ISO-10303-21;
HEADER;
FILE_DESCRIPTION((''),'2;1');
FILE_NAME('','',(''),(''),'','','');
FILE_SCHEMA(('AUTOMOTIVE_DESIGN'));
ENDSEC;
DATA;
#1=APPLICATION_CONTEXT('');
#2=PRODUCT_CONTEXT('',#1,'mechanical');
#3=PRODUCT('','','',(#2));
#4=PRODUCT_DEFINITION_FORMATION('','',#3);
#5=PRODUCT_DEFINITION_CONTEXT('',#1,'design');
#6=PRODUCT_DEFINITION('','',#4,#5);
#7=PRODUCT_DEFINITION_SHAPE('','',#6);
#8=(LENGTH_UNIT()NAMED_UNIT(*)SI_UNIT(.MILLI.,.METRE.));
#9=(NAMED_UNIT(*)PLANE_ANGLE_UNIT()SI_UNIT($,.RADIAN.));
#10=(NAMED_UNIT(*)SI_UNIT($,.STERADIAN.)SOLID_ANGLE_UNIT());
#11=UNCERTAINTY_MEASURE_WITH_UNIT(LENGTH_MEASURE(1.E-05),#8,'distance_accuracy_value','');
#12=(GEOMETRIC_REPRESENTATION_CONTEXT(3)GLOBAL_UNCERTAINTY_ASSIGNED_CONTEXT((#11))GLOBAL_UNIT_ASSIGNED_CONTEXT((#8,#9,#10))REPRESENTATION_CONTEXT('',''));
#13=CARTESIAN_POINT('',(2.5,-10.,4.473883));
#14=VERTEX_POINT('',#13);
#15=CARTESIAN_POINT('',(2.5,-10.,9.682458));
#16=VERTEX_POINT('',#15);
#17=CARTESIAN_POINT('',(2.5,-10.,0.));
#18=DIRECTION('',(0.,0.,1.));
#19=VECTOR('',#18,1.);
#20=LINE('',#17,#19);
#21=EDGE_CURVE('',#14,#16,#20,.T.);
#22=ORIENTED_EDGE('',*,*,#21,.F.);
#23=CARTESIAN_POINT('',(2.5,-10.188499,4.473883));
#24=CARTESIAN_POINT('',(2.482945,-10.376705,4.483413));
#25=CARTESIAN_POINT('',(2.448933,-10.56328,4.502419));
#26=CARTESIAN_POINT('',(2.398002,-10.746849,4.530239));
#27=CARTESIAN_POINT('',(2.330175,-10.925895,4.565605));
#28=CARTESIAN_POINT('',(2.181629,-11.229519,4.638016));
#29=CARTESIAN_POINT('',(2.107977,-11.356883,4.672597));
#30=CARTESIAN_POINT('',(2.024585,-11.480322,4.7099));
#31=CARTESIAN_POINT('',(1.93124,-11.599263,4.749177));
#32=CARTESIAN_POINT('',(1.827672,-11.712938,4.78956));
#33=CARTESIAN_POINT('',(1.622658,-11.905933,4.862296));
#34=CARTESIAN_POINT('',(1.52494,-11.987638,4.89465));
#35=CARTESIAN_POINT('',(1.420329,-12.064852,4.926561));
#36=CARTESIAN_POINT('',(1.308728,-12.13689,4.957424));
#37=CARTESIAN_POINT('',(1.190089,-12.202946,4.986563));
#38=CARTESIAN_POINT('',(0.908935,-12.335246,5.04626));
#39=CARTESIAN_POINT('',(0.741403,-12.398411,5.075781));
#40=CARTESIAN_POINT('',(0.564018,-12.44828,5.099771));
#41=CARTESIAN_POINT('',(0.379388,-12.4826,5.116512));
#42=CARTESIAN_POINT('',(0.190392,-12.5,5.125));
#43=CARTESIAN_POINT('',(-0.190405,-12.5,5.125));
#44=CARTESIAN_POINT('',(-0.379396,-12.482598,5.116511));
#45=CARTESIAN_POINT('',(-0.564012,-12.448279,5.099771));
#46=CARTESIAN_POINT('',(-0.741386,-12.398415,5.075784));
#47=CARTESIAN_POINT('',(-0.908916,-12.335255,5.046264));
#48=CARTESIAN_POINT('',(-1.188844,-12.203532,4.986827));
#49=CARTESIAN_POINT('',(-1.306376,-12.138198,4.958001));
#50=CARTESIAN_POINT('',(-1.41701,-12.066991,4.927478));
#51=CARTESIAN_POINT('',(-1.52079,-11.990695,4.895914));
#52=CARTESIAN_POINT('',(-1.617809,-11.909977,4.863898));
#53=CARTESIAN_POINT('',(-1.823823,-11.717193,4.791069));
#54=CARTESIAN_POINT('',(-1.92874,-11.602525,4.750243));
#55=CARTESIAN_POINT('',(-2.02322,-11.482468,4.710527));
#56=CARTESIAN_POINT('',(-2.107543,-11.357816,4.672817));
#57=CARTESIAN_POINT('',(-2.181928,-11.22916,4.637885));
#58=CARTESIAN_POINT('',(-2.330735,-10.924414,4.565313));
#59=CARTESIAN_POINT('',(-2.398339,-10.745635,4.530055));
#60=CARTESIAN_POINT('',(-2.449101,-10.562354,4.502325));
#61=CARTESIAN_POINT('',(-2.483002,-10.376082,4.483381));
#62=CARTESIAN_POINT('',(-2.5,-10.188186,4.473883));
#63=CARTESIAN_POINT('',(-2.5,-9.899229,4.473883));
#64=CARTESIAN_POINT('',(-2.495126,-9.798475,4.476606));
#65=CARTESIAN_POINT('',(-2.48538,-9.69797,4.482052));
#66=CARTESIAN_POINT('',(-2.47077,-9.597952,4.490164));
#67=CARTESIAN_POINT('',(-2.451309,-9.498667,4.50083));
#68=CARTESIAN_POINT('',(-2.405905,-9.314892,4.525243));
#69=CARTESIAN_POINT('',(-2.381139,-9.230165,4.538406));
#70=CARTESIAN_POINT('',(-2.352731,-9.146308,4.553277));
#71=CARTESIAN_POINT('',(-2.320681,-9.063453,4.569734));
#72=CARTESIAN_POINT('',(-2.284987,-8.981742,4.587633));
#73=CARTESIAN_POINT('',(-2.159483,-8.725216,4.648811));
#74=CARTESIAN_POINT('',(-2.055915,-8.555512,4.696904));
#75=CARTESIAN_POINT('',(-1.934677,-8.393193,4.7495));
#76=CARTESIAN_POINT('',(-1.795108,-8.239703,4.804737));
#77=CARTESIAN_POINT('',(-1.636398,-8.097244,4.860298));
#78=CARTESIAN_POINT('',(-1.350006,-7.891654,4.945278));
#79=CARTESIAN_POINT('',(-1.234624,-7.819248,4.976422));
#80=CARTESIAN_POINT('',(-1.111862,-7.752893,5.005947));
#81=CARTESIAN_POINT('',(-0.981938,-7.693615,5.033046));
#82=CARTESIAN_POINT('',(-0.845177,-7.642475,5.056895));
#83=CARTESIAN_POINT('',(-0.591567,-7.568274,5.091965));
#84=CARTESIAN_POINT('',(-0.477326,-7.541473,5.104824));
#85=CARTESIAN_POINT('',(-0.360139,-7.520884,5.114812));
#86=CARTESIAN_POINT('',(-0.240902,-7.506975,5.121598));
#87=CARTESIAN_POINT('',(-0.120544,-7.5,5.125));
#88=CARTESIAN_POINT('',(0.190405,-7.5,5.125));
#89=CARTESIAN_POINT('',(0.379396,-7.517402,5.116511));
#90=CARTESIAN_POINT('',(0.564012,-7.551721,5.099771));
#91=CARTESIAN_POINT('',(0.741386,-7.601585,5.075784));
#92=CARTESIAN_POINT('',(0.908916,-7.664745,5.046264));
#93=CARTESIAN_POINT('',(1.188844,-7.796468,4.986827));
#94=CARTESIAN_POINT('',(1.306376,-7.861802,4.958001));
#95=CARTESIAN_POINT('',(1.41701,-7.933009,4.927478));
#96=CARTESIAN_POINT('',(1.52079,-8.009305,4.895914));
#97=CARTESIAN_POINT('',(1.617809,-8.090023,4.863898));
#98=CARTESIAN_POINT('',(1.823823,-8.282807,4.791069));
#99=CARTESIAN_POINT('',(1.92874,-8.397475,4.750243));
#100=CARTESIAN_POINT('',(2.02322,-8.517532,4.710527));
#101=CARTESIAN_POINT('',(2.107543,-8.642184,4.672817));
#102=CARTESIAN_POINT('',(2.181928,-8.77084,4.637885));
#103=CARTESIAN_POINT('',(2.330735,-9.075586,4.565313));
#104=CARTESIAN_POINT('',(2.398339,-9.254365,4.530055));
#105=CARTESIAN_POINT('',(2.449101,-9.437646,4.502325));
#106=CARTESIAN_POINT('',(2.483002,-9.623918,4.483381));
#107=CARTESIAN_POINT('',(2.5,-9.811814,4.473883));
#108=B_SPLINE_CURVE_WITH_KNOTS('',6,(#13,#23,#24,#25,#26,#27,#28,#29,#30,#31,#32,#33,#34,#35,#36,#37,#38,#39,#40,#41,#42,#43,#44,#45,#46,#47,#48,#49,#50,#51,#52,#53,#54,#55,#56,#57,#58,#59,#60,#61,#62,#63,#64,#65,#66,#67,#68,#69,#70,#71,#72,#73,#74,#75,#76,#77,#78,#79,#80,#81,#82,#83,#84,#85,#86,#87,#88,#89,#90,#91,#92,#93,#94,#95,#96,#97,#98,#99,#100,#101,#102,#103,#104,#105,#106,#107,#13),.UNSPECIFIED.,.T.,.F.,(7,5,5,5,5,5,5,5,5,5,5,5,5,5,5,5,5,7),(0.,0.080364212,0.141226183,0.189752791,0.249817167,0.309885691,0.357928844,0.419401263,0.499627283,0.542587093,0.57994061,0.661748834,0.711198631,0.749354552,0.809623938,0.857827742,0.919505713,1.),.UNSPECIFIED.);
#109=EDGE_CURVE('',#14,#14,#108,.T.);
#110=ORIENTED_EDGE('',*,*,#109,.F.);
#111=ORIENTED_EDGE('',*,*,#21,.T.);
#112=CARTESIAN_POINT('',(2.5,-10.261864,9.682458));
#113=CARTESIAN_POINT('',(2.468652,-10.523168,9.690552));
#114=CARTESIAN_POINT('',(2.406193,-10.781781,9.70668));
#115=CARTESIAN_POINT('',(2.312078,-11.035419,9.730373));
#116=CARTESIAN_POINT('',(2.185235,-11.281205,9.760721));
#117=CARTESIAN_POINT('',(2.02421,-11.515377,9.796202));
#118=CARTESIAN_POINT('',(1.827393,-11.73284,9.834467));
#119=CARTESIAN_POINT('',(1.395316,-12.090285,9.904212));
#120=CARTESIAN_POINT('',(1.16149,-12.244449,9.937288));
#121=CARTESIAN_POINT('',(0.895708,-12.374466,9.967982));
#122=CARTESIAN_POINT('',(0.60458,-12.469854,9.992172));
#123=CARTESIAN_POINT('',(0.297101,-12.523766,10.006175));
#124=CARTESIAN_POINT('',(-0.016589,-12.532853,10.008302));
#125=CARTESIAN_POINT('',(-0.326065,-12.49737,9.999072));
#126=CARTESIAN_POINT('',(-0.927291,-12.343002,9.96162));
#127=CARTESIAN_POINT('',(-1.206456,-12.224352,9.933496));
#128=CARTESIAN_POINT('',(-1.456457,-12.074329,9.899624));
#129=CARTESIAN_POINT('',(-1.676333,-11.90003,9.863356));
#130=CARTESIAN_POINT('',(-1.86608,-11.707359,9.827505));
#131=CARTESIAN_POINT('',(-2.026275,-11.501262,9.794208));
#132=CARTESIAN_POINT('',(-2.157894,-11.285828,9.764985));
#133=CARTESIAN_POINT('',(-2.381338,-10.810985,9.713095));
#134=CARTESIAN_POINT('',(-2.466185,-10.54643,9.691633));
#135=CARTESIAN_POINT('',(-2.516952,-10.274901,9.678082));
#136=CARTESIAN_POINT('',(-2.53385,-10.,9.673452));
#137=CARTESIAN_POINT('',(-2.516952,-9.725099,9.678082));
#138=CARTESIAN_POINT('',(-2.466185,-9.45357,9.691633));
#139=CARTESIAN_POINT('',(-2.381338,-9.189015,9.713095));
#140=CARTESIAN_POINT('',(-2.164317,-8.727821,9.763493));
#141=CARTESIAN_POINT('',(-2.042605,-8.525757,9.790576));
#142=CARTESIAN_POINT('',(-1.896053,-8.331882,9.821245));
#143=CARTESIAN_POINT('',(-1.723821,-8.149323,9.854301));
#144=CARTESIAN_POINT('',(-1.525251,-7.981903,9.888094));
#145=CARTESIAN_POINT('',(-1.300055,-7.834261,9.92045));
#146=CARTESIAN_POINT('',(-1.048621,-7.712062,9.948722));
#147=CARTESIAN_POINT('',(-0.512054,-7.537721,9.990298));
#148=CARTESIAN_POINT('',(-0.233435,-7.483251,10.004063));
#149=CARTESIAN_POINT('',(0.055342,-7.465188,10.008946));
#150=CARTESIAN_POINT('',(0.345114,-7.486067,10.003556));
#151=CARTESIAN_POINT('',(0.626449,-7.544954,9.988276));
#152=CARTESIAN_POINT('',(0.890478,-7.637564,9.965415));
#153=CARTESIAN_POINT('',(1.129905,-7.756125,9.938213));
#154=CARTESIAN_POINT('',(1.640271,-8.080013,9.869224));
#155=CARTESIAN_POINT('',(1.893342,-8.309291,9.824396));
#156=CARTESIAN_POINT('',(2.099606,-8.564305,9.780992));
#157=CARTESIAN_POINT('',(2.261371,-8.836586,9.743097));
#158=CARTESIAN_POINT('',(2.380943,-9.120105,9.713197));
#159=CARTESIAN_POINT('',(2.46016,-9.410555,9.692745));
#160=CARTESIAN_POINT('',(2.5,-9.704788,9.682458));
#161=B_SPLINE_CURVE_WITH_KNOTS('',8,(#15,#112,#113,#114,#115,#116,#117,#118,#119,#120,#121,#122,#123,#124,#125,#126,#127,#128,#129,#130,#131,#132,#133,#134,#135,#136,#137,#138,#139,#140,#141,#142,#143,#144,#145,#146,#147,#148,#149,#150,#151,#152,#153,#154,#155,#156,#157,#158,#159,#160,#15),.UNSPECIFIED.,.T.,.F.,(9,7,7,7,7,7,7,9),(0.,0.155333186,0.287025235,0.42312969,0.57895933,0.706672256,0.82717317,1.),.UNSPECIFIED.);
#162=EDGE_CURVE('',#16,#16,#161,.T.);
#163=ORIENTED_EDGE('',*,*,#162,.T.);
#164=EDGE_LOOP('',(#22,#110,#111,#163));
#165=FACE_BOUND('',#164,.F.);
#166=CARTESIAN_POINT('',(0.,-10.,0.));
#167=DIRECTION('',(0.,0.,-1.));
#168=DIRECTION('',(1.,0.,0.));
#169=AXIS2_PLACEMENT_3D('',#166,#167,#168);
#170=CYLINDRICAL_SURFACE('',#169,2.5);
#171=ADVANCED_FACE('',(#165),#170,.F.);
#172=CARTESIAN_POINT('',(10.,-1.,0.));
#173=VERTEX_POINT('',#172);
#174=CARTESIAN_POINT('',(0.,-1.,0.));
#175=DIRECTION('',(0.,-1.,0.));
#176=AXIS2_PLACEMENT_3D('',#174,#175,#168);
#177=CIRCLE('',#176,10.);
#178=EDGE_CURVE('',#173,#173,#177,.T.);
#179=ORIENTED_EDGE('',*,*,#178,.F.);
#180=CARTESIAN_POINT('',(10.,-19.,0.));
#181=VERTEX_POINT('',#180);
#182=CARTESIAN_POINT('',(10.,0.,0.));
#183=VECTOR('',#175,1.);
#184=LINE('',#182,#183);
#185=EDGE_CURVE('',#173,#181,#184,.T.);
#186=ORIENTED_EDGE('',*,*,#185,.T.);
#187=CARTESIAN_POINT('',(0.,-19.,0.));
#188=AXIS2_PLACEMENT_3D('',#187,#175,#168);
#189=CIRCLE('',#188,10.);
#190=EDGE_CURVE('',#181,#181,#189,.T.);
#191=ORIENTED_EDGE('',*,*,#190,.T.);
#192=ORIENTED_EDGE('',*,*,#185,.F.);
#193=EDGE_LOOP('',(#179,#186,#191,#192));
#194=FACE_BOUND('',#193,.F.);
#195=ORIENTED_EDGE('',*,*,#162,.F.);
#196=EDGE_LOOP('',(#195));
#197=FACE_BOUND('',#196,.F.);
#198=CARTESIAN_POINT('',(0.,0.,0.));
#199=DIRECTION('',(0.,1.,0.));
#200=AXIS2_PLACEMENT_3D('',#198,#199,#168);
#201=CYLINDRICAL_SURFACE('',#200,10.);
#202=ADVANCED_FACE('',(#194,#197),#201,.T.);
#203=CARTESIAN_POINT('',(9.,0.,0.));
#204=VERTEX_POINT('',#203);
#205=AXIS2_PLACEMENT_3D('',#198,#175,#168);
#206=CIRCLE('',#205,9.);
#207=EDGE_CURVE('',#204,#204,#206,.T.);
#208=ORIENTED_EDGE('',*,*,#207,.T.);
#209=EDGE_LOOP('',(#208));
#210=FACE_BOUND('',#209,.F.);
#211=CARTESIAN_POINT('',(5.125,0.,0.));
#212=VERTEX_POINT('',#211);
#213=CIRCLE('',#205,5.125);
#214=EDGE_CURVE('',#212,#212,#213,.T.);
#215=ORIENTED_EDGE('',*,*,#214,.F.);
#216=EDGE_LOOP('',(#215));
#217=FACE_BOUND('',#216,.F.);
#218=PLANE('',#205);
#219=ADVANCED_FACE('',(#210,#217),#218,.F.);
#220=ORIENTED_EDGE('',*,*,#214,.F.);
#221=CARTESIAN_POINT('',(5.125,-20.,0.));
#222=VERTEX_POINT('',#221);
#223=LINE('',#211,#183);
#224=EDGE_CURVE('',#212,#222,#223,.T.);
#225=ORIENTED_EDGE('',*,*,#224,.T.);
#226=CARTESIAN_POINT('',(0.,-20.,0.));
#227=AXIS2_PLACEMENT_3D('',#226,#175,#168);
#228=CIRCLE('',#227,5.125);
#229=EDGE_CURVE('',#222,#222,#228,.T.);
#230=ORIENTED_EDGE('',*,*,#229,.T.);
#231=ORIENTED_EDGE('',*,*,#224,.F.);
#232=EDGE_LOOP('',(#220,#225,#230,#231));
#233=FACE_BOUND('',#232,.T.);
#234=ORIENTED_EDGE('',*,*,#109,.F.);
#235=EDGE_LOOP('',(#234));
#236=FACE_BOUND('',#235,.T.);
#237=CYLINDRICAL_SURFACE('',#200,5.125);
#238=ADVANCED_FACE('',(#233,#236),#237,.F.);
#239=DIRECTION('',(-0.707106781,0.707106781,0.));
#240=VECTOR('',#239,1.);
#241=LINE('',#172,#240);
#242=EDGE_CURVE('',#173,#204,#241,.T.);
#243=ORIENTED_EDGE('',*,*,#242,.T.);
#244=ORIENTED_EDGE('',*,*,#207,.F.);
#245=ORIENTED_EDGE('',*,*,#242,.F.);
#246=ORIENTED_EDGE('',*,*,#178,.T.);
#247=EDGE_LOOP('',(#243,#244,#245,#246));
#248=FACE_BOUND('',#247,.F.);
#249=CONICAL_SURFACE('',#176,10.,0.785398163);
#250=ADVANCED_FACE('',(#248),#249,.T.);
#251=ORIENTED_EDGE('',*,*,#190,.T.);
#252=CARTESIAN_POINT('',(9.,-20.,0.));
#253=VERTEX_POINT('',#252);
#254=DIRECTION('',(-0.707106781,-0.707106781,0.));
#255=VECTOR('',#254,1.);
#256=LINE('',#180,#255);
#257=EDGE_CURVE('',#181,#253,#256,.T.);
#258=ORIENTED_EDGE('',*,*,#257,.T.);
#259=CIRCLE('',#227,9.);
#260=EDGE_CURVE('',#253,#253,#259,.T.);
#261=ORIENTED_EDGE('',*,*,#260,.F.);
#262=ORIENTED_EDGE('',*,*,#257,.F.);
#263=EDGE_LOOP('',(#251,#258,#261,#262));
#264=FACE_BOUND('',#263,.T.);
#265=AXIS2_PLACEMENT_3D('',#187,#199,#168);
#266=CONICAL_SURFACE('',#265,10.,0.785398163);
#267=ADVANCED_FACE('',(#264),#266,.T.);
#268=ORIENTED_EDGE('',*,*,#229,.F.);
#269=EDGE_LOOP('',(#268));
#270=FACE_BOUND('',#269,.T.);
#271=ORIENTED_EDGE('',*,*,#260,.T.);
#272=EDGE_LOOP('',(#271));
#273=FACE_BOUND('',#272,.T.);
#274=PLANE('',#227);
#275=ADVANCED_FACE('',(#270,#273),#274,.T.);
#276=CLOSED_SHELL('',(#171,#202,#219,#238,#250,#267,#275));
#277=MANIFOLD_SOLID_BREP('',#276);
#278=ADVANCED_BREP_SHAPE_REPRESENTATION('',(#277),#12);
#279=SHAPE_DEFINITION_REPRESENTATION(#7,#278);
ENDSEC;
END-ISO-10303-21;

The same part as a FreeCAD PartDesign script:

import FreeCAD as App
import Part
import Sketcher

V = App.Vector
Q = App.Units.Quantity


def edges_at(feature, points):
    """Names of the edges that pass closest to the given points."""
    edges = feature.Shape.Edges
    near = lambda p: min(range(len(edges)), key=lambda i: edges[i].distToShape(Part.Vertex(*p))[0])
    return sorted({f"Edge{near(p) + 1}" for p in points})

doc = App.newDocument("Part")
body = doc.addObject("PartDesign::Body", "Body")

sketch1 = doc.addObject("Sketcher::SketchObject", "Sketch")
body.addObject(sketch1)
sketch1.AttachmentSupport = (doc.XZ_Plane, [""])
sketch1.MapMode = "FlatFace"
sketch1.addGeometry(Part.Circle(V(0, 0, 0), V(0, 0, 1), 10), False)
sketch1.addGeometry(Part.Circle(V(0, 0, 0), V(0, 0, 1), 5), False)
sketch1.addConstraint(Sketcher.Constraint("Coincident", 0, 3, -1, 1))
sketch1.addConstraint(Sketcher.Constraint("Coincident", 1, 3, -1, 1))
sketch1.addConstraint(Sketcher.Constraint("Diameter", 0, Q("20 mm")))
sketch1.addConstraint(Sketcher.Constraint("Diameter", 1, Q("10.25 mm")))
pad1 = doc.addObject("PartDesign::Pad", "Pad")
body.addObject(pad1)
pad1.Profile = sketch1
pad1.Length = 20

sketch2 = doc.addObject("Sketcher::SketchObject", "Sketch001")
body.addObject(sketch2)
sketch2.AttachmentSupport = (doc.XY_Plane, [""])
sketch2.MapMode = "FlatFace"
sketch2.addGeometry(Part.Circle(V(0, -10, 0), V(0, 0, 1), 2.5), False)
sketch2.addConstraint(Sketcher.Constraint("PointOnObject", 0, 3, -2))
sketch2.addConstraint(Sketcher.Constraint("Diameter", 0, Q("5 mm")))
sketch2.addConstraint(Sketcher.Constraint("DistanceY", 0, 3, -1, 1, Q("10 mm")))
pocket1 = doc.addObject("PartDesign::Pocket", "Pocket")
body.addObject(pocket1)
pocket1.Profile = sketch2
pocket1.Type = "ThroughAll"
pocket1.Reversed = True
doc.recompute()

chamfer = doc.addObject("PartDesign::Chamfer", "Chamfer")
body.addObject(chamfer)
chamfer.Base = (pocket1, edges_at(pocket1, [(-10, -20, 0), (-10, 0, 0)]))
chamfer.Size = 1

doc.recompute()
